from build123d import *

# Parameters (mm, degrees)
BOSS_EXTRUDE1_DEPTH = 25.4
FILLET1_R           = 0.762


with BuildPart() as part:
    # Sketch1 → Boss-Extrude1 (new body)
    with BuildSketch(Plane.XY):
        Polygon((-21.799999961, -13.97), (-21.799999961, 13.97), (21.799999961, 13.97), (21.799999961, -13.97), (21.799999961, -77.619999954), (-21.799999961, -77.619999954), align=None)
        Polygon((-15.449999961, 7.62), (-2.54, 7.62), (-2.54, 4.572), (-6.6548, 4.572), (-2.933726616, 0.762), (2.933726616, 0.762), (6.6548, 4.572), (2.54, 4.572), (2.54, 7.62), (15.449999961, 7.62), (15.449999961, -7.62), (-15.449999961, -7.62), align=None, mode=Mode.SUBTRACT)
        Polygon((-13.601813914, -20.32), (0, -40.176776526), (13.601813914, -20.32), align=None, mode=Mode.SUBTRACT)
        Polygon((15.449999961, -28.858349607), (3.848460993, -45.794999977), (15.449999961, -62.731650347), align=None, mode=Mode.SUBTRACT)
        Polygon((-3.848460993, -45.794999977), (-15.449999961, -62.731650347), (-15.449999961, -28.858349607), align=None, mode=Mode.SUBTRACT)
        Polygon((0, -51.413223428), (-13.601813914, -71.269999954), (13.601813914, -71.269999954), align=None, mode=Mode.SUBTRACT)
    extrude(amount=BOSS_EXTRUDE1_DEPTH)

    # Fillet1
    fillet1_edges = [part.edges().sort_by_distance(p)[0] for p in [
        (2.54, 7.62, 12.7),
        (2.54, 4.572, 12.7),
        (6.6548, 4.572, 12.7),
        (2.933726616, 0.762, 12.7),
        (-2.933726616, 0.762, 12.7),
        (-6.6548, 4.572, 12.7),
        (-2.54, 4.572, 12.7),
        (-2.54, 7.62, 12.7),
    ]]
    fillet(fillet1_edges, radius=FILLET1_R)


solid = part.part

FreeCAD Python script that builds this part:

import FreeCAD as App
import Part
import Sketcher

V = App.Vector
Q = App.Units.Quantity


def edges_at(feature, points):
    """Names of the edges that pass closest to the given points."""
    edges = feature.Shape.Edges
    near = lambda p: min(range(len(edges)), key=lambda i: edges[i].distToShape(Part.Vertex(*p))[0])
    return sorted({f"Edge{near(p) + 1}" for p in points})


def add_polygon(sketch, points):
    """Adds a closed chain of lines whose ends are joined by coincident constraints."""
    first, n = sketch.GeometryCount, len(points)
    for a, b in zip(points, points[1:] + points[:1]):
        sketch.addGeometry(Part.LineSegment(App.Vector(*a, 0), App.Vector(*b, 0)), False)
    for i in range(n):
        sketch.addConstraint(Sketcher.Constraint("Coincident", first + i, 2, first + (i + 1) % n, 1))

doc = App.newDocument("Part")
body = doc.addObject("PartDesign::Body", "Body")

# Sketch on XY plane
sketch1 = doc.addObject("Sketcher::SketchObject", "Sketch")
body.addObject(sketch1)
sketch1.AttachmentSupport = (doc.XY_Plane, [""])
sketch1.MapMode = "FlatFace"
add_polygon(sketch1, [(-21.8, 14), (-21.8, -77.6), (21.8, -77.6), (21.8, 14)])  # lines 0-3
add_polygon(sketch1, [(15.4, -28.9), (15.4, -62.7), (3.8, -45.8)])  # lines 4-6
add_polygon(sketch1, [(0, -51.4), (13.6, -71.3), (-13.6, -71.3)])  # lines 7-9
add_polygon(sketch1, [(-3.8, -45.8), (-15.4, -62.7), (-15.4, -28.9)])  # lines 10-12
add_polygon(sketch1, [(-15.4, 7.6), (-2.5, 7.6), (-2.5, 4.6), (-6.7, 4.6), (-2.9, 0.8), (2.9, 0.8), (6.7, 4.6), (2.5, 4.6), (2.5, 7.6), (15.4, 7.6), (15.4, -7.6), (-15.4, -7.6)])  # lines 13-24
add_polygon(sketch1, [(-13.6, -20.3), (13.6, -20.3), (0, -40.2)])  # lines 25-27
sketch1.addConstraint(Sketcher.Constraint("Vertical", 0))
sketch1.addConstraint(Sketcher.Constraint("Horizontal", 1))
sketch1.addConstraint(Sketcher.Constraint("Vertical", 2))
sketch1.addConstraint(Sketcher.Constraint("Horizontal", 3))
sketch1.addConstraint(Sketcher.Constraint("Vertical", 4))
sketch1.addConstraint(Sketcher.Constraint("Horizontal", 8))
sketch1.addConstraint(Sketcher.Constraint("Vertical", 11))
sketch1.addConstraint(Sketcher.Constraint("Horizontal", 13))
sketch1.addConstraint(Sketcher.Constraint("Vertical", 14))
sketch1.addConstraint(Sketcher.Constraint("Horizontal", 15))
sketch1.addConstraint(Sketcher.Constraint("Horizontal", 17))
sketch1.addConstraint(Sketcher.Constraint("Horizontal", 19))
sketch1.addConstraint(Sketcher.Constraint("Vertical", 20))
sketch1.addConstraint(Sketcher.Constraint("Horizontal", 21))
sketch1.addConstraint(Sketcher.Constraint("Vertical", 22))
sketch1.addConstraint(Sketcher.Constraint("Horizontal", 23))
sketch1.addConstraint(Sketcher.Constraint("Vertical", 24))
sketch1.addConstraint(Sketcher.Constraint("Horizontal", 25))
sketch1.addConstraint(Sketcher.Constraint("Symmetric", 21, 2, 23, 2, -1, 1))
sketch1.addConstraint(Sketcher.Constraint("Symmetric", 4, 2, 10, 2, -2))
sketch1.addConstraint(Sketcher.Constraint("Symmetric", 5, 2, 12, 2, -2))
sketch1.addConstraint(Sketcher.Constraint("Symmetric", 15, 2, 18, 2, -2))
sketch1.addConstraint(Sketcher.Constraint("Symmetric", 13, 2, 20, 2, -2))
sketch1.addConstraint(Sketcher.Constraint("PointOnObject", 9, 2, -2))
sketch1.addConstraint(Sketcher.Constraint("PointOnObject", 26, 2, -2))
sketch1.addConstraint(Sketcher.Constraint("Parallel", 5, 7))
sketch1.addConstraint(Sketcher.Constraint("Parallel", 6, 9))
sketch1.addConstraint(Sketcher.Constraint("Parallel", 9, 10))
sketch1.addConstraint(Sketcher.Constraint("Parallel", 7, 12))
sketch1.addConstraint(Sketcher.Constraint("Parallel", 10, 26))
sketch1.addConstraint(Sketcher.Constraint("Parallel", 12, 27))
sketch1.addConstraint(Sketcher.Constraint("Vertical", 6, 2, 21, 2))
sketch1.addConstraint(Sketcher.Constraint("Vertical", 7, 2, 25, 2))
sketch1.addConstraint(Sketcher.Constraint("Equal", 16, 18))
sketch1.addConstraint(Sketcher.Constraint("DistanceY", 22, 2, 22, 1, Q("0.6 in")))
sketch1.addConstraint(Sketcher.Constraint("DistanceY", 14, 2, 14, 1, Q("0.12 in")))
sketch1.addConstraint(Sketcher.Constraint("DistanceX", 13, 2, -1, 1, Q("0.1 in")))
sketch1.addConstraint(Sketcher.Constraint("DistanceY", 25, 2, -1, 1, Q("0.8 in")))
sketch1.addConstraint(Sketcher.Constraint("DistanceX", 15, 2, 15, 1, Q("0.162 in")))
sketch1.addConstraint(Sketcher.Constraint("DistanceY", -1, 1, 2, 2, Q("0.55 in")))
sketch1.addConstraint(Sketcher.Constraint("DistanceY", -1, 1, 16, 2, Q("0.03 in")))
sketch1.addConstraint(Sketcher.Constraint("DistanceX", 4, 2, 1, 2, Q("0.25 in")))
sketch1.addConstraint(Sketcher.Constraint("DistanceY", 1, 2, 7, 2, Q("0.25 in")))
sketch1.addConstraint(Sketcher.Constraint("DistanceX", 0, 2, 10, 2, Q("0.25 in")))
sketch1.addConstraint(Sketcher.Constraint("DistanceX", 1, 1, 1, 2, Q("43.6 mm")))
sketch1.addConstraint(Sketcher.Constraint("DistanceY", 0, 2, 0, 1, Q("91.59 mm")))
sketch1.addConstraint(Sketcher.Constraint("DistanceY", 4, 2, 4, 1, Q("33.873301 mm")))
sketch1.addConstraint(Sketcher.Constraint("DistanceY", 5, 2, -1, 1, Q("45.795 mm")))
sketch1.addConstraint(Sketcher.Constraint("Distance", 7, Q("24.068671 mm")))
sketch1.addConstraint(Sketcher.Constraint("DistanceX", 8, 2, 8, 1, Q("27.203628 mm")))
sketch1.addConstraint(Sketcher.Constraint("DistanceX", 17, 1, 17, 2, Q("5.867453 mm")))
pad1 = doc.addObject("PartDesign::Pad", "Pad")
body.addObject(pad1)
pad1.Profile = sketch1
pad1.Length = Q("1 in")
doc.recompute()

fillet = doc.addObject("PartDesign::Fillet", "Fillet")
body.addObject(fillet)
fillet.Base = (pad1, edges_at(pad1, [
    (2.54, 7.62, 12.7),
    (2.54, 4.572, 12.7),
    (6.655, 4.572, 12.7),
    (2.934, 0.762, 12.7),
    (-2.934, 0.762, 12.7),
    (-6.655, 4.572, 12.7),
    (-2.54, 4.572, 12.7),
    (-2.54, 7.62, 12.7),
]))
fillet.Radius = Q("0.03 in")

doc.recompute()
